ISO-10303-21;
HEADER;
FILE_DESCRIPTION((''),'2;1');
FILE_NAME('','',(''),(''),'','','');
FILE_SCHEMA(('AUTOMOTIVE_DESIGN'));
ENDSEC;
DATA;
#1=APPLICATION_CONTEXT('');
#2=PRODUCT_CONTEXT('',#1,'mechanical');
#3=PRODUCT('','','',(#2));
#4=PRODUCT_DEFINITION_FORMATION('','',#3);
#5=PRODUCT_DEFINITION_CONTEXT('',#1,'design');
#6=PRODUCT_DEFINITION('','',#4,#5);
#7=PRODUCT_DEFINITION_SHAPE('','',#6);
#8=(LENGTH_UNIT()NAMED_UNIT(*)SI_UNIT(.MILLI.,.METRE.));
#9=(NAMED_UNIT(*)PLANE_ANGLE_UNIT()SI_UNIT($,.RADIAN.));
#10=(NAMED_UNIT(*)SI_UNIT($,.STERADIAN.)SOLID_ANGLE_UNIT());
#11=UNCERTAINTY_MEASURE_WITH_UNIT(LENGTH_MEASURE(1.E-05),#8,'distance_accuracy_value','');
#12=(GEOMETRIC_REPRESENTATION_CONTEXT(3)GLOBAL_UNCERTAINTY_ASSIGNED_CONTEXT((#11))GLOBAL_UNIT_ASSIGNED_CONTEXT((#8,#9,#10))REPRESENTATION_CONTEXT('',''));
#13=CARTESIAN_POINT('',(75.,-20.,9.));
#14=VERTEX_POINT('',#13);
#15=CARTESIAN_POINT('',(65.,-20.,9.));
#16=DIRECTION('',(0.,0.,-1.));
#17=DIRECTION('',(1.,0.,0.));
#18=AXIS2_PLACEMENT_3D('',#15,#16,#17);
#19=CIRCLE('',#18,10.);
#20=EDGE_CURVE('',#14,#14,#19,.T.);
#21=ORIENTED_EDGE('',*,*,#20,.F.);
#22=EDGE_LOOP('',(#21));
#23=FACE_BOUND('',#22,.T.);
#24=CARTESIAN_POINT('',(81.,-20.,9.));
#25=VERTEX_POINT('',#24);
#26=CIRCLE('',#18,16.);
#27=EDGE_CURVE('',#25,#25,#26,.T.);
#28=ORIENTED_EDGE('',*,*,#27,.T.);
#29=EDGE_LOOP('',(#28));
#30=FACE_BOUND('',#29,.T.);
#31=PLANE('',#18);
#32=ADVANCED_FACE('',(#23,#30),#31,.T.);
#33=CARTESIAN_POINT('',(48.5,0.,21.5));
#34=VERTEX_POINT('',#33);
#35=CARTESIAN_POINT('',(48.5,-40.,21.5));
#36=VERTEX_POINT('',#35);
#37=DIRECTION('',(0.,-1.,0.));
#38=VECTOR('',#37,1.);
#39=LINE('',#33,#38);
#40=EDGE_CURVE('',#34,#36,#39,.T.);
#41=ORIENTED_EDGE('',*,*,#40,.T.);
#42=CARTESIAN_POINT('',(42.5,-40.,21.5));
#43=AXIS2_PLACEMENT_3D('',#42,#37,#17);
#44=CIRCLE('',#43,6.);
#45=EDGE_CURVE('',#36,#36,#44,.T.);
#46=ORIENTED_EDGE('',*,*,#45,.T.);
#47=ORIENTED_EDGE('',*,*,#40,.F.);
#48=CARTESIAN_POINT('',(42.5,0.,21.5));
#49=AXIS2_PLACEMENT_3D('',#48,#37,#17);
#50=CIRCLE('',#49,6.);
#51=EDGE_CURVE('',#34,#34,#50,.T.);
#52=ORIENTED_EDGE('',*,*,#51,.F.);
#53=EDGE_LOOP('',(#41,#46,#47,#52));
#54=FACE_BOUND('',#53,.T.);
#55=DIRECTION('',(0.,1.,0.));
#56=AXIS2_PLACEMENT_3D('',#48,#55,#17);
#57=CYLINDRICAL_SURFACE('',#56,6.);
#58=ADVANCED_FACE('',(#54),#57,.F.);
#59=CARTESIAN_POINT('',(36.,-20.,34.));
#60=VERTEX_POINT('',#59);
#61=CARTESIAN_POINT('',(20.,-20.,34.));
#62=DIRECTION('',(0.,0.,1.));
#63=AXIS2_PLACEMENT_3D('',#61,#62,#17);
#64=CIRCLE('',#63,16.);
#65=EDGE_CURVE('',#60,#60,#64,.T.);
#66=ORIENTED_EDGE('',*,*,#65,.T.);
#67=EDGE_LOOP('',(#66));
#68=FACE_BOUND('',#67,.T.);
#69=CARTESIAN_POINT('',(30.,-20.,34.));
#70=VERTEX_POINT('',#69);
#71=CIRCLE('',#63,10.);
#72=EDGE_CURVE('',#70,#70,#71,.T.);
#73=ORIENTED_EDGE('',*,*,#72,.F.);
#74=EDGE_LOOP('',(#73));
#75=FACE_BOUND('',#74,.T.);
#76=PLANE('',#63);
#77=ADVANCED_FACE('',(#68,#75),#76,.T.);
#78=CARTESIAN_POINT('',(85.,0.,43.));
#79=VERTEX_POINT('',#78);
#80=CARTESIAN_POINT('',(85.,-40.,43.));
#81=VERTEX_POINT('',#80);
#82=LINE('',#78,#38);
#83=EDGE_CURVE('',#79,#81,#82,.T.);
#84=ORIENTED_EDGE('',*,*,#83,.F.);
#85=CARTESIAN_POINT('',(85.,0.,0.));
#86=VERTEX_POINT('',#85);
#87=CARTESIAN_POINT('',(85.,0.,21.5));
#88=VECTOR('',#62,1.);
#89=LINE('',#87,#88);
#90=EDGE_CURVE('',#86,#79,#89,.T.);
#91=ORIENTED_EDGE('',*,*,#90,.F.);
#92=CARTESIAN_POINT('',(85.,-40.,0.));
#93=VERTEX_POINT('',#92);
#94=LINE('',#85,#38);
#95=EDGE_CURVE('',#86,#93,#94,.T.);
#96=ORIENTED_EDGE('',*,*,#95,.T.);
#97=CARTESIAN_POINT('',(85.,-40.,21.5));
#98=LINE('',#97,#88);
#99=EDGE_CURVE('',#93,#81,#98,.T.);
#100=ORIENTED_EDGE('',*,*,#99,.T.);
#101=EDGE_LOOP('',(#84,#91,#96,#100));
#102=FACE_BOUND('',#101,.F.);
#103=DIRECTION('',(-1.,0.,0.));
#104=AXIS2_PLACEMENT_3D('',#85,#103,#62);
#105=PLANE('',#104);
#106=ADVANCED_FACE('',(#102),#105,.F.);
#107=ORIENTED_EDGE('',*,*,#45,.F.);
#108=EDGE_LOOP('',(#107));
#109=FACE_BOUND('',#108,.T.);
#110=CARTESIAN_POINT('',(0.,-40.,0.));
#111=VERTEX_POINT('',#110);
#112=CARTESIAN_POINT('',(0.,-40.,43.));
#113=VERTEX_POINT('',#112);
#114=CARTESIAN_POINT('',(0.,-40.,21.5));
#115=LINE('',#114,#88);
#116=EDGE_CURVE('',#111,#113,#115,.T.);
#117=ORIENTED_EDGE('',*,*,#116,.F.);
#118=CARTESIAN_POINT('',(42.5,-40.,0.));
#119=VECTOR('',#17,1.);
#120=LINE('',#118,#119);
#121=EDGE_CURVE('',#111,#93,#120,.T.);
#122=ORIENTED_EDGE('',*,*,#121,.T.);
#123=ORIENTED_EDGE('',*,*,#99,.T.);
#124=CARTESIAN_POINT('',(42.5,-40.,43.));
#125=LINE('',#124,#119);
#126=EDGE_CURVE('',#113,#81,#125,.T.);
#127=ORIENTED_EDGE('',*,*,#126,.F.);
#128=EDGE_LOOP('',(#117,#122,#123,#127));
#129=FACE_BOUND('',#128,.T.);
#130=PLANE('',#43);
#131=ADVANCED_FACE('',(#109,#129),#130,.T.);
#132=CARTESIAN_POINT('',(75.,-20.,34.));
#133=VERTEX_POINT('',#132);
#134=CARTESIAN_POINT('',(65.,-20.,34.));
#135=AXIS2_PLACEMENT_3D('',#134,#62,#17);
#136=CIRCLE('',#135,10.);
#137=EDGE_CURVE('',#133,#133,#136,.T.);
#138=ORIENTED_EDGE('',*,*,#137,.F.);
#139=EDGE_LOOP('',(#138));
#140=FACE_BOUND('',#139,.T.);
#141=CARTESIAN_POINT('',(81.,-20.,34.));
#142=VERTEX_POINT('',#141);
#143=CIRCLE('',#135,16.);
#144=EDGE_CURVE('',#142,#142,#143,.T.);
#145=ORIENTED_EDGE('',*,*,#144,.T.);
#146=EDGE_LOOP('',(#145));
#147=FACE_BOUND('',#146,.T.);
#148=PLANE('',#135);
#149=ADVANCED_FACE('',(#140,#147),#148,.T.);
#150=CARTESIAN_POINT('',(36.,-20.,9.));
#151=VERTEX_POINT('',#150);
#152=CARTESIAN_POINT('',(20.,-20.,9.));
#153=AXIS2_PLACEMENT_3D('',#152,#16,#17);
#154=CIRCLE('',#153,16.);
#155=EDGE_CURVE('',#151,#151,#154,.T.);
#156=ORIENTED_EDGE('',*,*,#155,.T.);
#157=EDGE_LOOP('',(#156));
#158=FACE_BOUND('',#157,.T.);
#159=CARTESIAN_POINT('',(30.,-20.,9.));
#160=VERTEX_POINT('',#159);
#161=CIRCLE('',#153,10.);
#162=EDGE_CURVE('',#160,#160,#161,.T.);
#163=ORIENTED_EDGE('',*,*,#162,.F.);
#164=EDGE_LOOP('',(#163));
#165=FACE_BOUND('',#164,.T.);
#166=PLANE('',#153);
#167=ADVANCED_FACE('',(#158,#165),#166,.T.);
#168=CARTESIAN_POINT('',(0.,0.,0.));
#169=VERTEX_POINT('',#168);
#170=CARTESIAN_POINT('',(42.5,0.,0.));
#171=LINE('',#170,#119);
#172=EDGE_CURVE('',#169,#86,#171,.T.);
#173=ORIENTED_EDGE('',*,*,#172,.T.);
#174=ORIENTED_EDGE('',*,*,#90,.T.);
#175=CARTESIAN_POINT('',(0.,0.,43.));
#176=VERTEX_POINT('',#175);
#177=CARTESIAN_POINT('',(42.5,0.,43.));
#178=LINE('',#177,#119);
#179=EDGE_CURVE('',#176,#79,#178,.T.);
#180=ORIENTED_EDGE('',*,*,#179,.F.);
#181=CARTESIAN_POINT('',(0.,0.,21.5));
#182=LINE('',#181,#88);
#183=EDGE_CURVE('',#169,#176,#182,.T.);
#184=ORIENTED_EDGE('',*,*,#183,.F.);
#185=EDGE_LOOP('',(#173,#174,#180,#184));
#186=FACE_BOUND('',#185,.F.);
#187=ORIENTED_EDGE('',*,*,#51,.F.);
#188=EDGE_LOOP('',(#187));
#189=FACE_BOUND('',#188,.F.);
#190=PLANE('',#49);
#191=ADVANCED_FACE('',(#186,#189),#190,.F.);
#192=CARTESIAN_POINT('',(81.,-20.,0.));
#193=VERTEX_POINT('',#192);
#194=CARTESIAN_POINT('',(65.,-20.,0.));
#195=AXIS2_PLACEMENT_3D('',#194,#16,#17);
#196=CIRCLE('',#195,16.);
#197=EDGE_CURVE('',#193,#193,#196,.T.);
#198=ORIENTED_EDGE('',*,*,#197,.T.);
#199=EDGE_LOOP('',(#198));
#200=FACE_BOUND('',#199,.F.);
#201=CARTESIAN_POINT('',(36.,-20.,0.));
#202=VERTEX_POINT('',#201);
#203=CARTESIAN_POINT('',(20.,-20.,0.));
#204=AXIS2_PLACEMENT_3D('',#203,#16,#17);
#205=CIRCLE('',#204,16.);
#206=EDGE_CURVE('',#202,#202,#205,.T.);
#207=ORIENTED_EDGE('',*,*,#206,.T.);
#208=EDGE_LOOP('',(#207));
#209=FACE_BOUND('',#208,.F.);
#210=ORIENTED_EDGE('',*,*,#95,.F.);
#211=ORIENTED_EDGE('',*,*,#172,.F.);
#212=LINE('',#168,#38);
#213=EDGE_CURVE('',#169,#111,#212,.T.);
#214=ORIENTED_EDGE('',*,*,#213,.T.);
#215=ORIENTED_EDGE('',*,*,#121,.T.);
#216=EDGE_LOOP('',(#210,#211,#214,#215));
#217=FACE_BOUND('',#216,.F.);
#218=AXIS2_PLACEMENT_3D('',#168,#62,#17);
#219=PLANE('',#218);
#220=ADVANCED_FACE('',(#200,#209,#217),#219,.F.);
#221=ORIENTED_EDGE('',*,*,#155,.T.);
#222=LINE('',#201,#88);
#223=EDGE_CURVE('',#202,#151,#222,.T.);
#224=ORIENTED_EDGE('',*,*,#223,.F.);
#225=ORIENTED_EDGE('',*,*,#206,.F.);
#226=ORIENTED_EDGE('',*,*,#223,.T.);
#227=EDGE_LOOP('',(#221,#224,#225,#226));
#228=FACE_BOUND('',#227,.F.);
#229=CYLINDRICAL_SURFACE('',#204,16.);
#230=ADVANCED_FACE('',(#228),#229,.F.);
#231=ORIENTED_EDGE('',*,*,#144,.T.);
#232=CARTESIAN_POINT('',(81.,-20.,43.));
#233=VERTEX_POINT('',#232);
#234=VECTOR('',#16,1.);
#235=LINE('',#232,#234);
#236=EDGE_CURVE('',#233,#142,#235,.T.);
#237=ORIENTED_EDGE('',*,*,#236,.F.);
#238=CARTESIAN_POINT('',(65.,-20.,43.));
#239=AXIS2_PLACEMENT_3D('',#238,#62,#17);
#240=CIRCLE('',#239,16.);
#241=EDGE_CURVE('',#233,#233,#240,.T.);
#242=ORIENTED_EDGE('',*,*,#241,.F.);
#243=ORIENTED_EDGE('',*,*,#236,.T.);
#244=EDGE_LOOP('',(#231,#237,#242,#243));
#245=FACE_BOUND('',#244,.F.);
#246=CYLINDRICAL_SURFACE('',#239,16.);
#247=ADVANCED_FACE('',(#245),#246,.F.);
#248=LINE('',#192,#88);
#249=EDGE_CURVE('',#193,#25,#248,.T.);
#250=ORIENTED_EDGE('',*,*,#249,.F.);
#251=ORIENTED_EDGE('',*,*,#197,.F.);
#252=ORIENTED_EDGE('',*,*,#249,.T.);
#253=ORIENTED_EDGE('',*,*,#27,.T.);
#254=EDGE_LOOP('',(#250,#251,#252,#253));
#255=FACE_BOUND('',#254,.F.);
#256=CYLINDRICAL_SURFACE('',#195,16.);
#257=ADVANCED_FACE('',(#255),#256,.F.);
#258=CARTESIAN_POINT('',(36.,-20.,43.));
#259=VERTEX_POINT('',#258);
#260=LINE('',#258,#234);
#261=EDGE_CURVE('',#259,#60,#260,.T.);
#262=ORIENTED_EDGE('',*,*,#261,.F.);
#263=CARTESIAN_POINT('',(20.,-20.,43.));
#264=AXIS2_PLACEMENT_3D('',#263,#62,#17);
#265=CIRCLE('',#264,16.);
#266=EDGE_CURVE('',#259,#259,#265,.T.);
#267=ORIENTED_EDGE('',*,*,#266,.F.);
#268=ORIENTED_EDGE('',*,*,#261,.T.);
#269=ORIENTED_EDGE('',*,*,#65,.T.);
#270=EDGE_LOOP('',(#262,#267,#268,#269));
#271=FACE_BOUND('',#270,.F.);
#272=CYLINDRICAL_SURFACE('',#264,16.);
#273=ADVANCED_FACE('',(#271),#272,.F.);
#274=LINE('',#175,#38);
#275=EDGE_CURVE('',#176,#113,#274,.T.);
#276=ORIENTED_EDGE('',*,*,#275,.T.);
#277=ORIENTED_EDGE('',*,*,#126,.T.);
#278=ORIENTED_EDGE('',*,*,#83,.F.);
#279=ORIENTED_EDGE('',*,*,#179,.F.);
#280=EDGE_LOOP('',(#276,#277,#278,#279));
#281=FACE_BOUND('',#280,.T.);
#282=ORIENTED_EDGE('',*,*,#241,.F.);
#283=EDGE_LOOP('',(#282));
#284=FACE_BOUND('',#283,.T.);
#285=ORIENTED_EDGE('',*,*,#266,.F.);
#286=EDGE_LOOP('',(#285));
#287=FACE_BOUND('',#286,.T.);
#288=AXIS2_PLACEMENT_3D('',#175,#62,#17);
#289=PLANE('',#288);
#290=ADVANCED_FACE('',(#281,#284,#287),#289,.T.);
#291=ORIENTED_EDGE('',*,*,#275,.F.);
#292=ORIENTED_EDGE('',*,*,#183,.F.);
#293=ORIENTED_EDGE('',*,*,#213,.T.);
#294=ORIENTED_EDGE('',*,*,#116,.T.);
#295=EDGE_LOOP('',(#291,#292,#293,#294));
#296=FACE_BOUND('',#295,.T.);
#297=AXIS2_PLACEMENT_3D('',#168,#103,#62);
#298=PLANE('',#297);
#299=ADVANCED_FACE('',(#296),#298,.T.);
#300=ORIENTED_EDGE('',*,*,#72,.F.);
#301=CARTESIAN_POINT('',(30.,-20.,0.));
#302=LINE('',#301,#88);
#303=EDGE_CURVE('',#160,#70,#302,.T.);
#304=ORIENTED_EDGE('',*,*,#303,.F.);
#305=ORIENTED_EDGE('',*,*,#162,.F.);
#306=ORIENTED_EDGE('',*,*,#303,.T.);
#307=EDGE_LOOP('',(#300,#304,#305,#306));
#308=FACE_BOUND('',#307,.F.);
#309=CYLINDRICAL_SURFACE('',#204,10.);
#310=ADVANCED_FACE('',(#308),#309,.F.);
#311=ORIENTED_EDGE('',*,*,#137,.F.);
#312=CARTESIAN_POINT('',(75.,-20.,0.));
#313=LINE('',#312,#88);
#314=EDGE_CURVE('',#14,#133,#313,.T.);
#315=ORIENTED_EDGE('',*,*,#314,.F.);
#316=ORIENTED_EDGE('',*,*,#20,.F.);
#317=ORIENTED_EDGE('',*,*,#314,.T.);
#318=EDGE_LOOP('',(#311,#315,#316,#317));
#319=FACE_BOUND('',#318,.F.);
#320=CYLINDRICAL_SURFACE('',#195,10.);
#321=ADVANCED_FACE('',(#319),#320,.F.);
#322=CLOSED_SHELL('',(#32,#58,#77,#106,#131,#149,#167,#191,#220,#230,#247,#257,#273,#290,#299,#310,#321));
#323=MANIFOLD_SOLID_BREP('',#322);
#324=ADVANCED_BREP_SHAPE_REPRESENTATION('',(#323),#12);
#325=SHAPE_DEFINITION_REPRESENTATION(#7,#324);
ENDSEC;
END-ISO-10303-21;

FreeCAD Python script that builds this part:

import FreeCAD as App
import Part
import Sketcher
Q = App.Units.Quantity

doc = App.newDocument("Part")
body = doc.addObject("PartDesign::Body", "Body")

# Sketch on XZ plane
sketch1 = body.newObject("Sketcher::SketchObject", "Sketch")
sketch1.AttachmentSupport = (doc.getObject("XZ_Plane"), [""])
sketch1.MapMode = "FlatFace"
sketch1.addGeometry([
    Part.LineSegment(App.Vector(0, 43, 0), App.Vector(0, 0, 0)),  # 0
    Part.LineSegment(App.Vector(0, 0, 0), App.Vector(85, 0, 0)),  # 1
    Part.LineSegment(App.Vector(85, 0, 0), App.Vector(85, 43, 0)),  # 2
    Part.LineSegment(App.Vector(85, 43, 0), App.Vector(0, 43, 0)),  # 3
    Part.Circle(App.Vector(42.5, 21.5, 0), App.Vector(0, 0, 1), 6),  # 4
], False)
sketch1.addConstraint([
    Sketcher.Constraint("Coincident", 0, 2, 1, 1),
    Sketcher.Constraint("Coincident", 1, 2, 2, 1),
    Sketcher.Constraint("Coincident", 2, 2, 3, 1),
    Sketcher.Constraint("Coincident", 3, 2, 0, 1),
    Sketcher.Constraint("Vertical", 0),
    Sketcher.Constraint("Horizontal", 1),
    Sketcher.Constraint("Vertical", 2),
    Sketcher.Constraint("Horizontal", 3),
    Sketcher.Constraint("Coincident", 0, 2, -1, 1),
    Sketcher.Constraint("Diameter", 4, Q("12 mm")),
    Sketcher.Constraint("DistanceX", 1, 1, 1, 2, Q("85 mm")),
    Sketcher.Constraint("DistanceY", 0, 2, 0, 1, Q("43 mm")),
    Sketcher.Constraint("DistanceX", -1, 1, 4, 3, Q("42.5 mm")),
    Sketcher.Constraint("DistanceY", -1, 1, 4, 3, Q("21.5 mm")),
])
pad1 = body.newObject("PartDesign::Pad", "Pad")
pad1.Profile = sketch1
pad1.Length = 40

# Sketch on XY plane
sketch2 = body.newObject("Sketcher::SketchObject", "Sketch001")
sketch2.AttachmentSupport = (doc.getObject("XY_Plane"), [""])
sketch2.MapMode = "FlatFace"
sketch2.addGeometry([
    Part.Circle(App.Vector(20, -20, 0), App.Vector(0, 0, 1), 10),
    Part.Circle(App.Vector(65, -20, 0), App.Vector(0, 0, 1), 10),
], False)
sketch2.addConstraint([
    Sketcher.Constraint("Equal", 0, 1),
    Sketcher.Constraint("Horizontal", 0, 3, 1, 3),
    Sketcher.Constraint("Diameter", 0, Q("20 mm")),
    Sketcher.Constraint("DistanceX", -1, 1, 0, 3, Q("20 mm")),
    Sketcher.Constraint("DistanceY", 0, 3, -1, 1, Q("20 mm")),
    Sketcher.Constraint("DistanceX", -1, 1, 1, 3, Q("65 mm")),
])
pocket1 = body.newObject("PartDesign::Pocket", "Pocket")
pocket1.Profile = sketch2
pocket1.Type = "ThroughAll"
pocket1.Reversed = True

# Sketch on XY plane
sketch3 = body.newObject("Sketcher::SketchObject", "Sketch002")
sketch3.AttachmentSupport = (doc.getObject("XY_Plane"), [""])
sketch3.MapMode = "FlatFace"
sketch3.addGeometry([
    Part.Circle(App.Vector(20, -20, 0), App.Vector(0, 0, 1), 16),
    Part.Circle(App.Vector(20, -20, 0), App.Vector(0, 0, 1), 10),
    Part.Circle(App.Vector(65, -20, 0), App.Vector(0, 0, 1), 16),
    Part.Circle(App.Vector(65, -20, 0), App.Vector(0, 0, 1), 10),
], False)
sketch3.addConstraint([
    Sketcher.Constraint("Coincident", 1, 3, 0, 3),
    Sketcher.Constraint("Coincident", 3, 3, 2, 3),
    Sketcher.Constraint("Equal", 0, 2),
    Sketcher.Constraint("Equal", 1, 3),
    Sketcher.Constraint("Horizontal", 1, 3, 2, 3),
    Sketcher.Constraint("Diameter", 0, Q("32 mm")),
    Sketcher.Constraint("Diameter", 1, Q("20 mm")),
    Sketcher.Constraint("DistanceX", -1, 1, 0, 3, Q("20 mm")),
    Sketcher.Constraint("DistanceY", 0, 3, -1, 1, Q("20 mm")),
    Sketcher.Constraint("DistanceX", -1, 1, 2, 3, Q("65 mm")),
])
pocket2 = body.newObject("PartDesign::Pocket", "Pocket001")
pocket2.Profile = sketch3
pocket2.Length = 9
pocket2.Reversed = True

# Sketch on XY plane
sketch4 = body.newObject("Sketcher::SketchObject", "Sketch003")
sketch4.AttachmentSupport = (doc.getObject("XY_Plane"), [""])
sketch4.MapMode = "FlatFace"
sketch4.AttachmentOffset = App.Placement(App.Vector(0, 0, 43), App.Rotation())
sketch4.addGeometry([
    Part.Circle(App.Vector(20, -20, 0), App.Vector(0, 0, 1), 16),
    Part.Circle(App.Vector(20, -20, 0), App.Vector(0, 0, 1), 10),
    Part.Circle(App.Vector(65, -20, 0), App.Vector(0, 0, 1), 16),
    Part.Circle(App.Vector(65, -20, 0), App.Vector(0, 0, 1), 10),
], False)
sketch4.addConstraint([
    Sketcher.Constraint("Coincident", 1, 3, 0, 3),
    Sketcher.Constraint("Coincident", 3, 3, 2, 3),
    Sketcher.Constraint("Equal", 0, 2),
    Sketcher.Constraint("Equal", 1, 3),
    Sketcher.Constraint("Horizontal", 1, 3, 2, 3),
    Sketcher.Constraint("Diameter", 0, Q("32 mm")),
    Sketcher.Constraint("Diameter", 1, Q("20 mm")),
    Sketcher.Constraint("DistanceX", -1, 1, 0, 3, Q("20 mm")),
    Sketcher.Constraint("DistanceY", 0, 3, -1, 1, Q("20 mm")),
    Sketcher.Constraint("DistanceX", -1, 1, 2, 3, Q("65 mm")),
])
pocket3 = body.newObject("PartDesign::Pocket", "Pocket002")
pocket3.Profile = sketch4
pocket3.Length = 9

doc.recompute()
